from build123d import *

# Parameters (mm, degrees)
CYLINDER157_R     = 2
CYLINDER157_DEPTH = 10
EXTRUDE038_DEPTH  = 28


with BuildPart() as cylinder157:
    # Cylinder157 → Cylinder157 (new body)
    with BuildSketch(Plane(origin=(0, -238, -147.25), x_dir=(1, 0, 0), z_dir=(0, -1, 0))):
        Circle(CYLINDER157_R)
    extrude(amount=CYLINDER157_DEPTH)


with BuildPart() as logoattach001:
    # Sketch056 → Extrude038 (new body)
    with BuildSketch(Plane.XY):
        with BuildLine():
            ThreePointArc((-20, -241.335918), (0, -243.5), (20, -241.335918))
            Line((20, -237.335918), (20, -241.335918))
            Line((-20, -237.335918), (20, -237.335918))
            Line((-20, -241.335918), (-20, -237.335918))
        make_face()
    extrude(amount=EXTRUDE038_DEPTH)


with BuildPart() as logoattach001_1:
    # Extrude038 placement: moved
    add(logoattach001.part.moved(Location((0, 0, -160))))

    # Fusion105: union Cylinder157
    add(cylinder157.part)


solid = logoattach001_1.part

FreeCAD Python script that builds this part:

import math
import FreeCAD as App
import Part
import Sketcher
Q = App.Units.Quantity

doc = App.newDocument("Part")
body = doc.addObject("PartDesign::Body", "Body")

sketch1 = body.newObject("Sketcher::SketchObject", "Sketch")
sketch1.AttachmentSupport = (doc.getObject("XZ_Plane"), [""])
sketch1.MapMode = "FlatFace"
sketch1.AttachmentOffset = App.Placement(App.Vector(0, 0, 238), App.Rotation())
sketch1.addGeometry(Part.Circle(App.Vector(0, -147.2, 0), App.Vector(0, 0, 1), 2), False)
sketch1.addConstraint(Sketcher.Constraint("PointOnObject", 0, 3, -2))
sketch1.addConstraint(Sketcher.Constraint("Diameter", 0, Q("4 mm")))
sketch1.addConstraint(Sketcher.Constraint("DistanceY", 0, 3, -1, 1, Q("147.25 mm")))
pad1 = body.newObject("PartDesign::Pad", "Pad")
pad1.Profile = sketch1
pad1.Length = 10
body2 = doc.addObject("PartDesign::Body", "Body001")

sketch2 = body2.newObject("Sketcher::SketchObject", "Sketch001")
sketch2.AttachmentSupport = (doc.getObject("XY_Plane001"), [""])
sketch2.MapMode = "FlatFace"
sketch2.addGeometry(Part.ArcOfCircle(Part.Circle(App.Vector(0, -150, 0), App.Vector(0, 0, 1), 93.5), math.radians(-102), math.radians(-78)), False)
sketch2.addGeometry(Part.LineSegment(App.Vector(20, -241.3, 0), App.Vector(20, -237.3, 0)), False)
sketch2.addGeometry(Part.LineSegment(App.Vector(20, -237.3, 0), App.Vector(-20, -237.3, 0)), False)
sketch2.addGeometry(Part.LineSegment(App.Vector(-20, -237.3, 0), App.Vector(-20, -241.3, 0)), False)
sketch2.addConstraint(Sketcher.Constraint("Coincident", 0, 2, 1, 1))
sketch2.addConstraint(Sketcher.Constraint("Coincident", 1, 2, 2, 1))
sketch2.addConstraint(Sketcher.Constraint("Coincident", 2, 2, 3, 1))
sketch2.addConstraint(Sketcher.Constraint("Coincident", 3, 2, 0, 1))
sketch2.addConstraint(Sketcher.Constraint("Vertical", 1))
sketch2.addConstraint(Sketcher.Constraint("Horizontal", 2))
sketch2.addConstraint(Sketcher.Constraint("Vertical", 3))
sketch2.addConstraint(Sketcher.Constraint("Symmetric", 0, 2, 3, 2, -2))
sketch2.addConstraint(Sketcher.Constraint("DistanceX", 2, 2, 2, 1, Q("40 mm")))
sketch2.addConstraint(Sketcher.Constraint("DistanceY", 1, 1, 1, 2, Q("4 mm")))
sketch2.addConstraint(Sketcher.Constraint("Radius", 0, Q("93.499981 mm")))
sketch2.addConstraint(Sketcher.Constraint("DistanceY", 0, 3, -1, 1, Q("150.000019 mm")))
pad2 = body2.newObject("PartDesign::Pad", "Pad001")
pad2.Profile = sketch2
pad2.Length = 28
body3 = doc.addObject("PartDesign::Body", "Body002")
doc.recompute()

body2.Placement = App.Placement(App.Vector(0, 0, -160), App.Rotation(App.Vector(0, 0, 1), 0))
boolean = body3.newObject("PartDesign::Boolean", "Boolean")
boolean.Type = "Fuse"
boolean.addObjects([body2])
doc.recompute()

boolean2 = body3.newObject("PartDesign::Boolean", "Boolean001")
boolean2.Type = "Fuse"
boolean2.addObjects([body])

doc.recompute()
